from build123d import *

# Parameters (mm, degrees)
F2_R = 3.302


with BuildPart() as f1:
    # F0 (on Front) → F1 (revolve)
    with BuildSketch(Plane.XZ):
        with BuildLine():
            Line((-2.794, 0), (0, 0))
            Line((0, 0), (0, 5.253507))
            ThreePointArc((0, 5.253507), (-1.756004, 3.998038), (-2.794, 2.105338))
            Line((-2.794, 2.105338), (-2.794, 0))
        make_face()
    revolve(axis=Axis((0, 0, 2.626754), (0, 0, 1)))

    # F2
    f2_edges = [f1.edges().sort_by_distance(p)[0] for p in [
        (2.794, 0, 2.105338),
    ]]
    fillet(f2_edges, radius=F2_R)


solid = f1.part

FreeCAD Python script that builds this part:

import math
import FreeCAD as App
import Part
import Sketcher
from FreeCAD import Vector
Q = App.Units.Quantity


def edges_at(feature, points):
    """Names of the edges that pass closest to the given points."""
    edges = feature.Shape.Edges
    near = lambda p: min(range(len(edges)), key=lambda i: edges[i].distToShape(Part.Vertex(*p))[0])
    return sorted({f"Edge{near(p) + 1}" for p in points})

doc = App.newDocument("Part")
body = doc.addObject("PartDesign::Body", "Body")

# Sketch on XZ plane
sketch1 = body.newObject("Sketcher::SketchObject", "Sketch")
sketch1.AttachmentSupport = (doc.getObject("XZ_Plane"), [""])
sketch1.MapMode = "FlatFace"
sketch1.addGeometry(Part.LineSegment(Vector(-2.8, 0, 0), Vector(0, 0, 0)), False)
sketch1.addGeometry(Part.LineSegment(Vector(0, 0, 0), Vector(0, 5.3, 0)), False)
sketch1.addGeometry(Part.ArcOfCircle(Part.Circle(Vector(1.9, 0.8, 0), Vector(0, 0, 1), 4.9), math.radians(113), math.radians(164)), False)
sketch1.addGeometry(Part.LineSegment(Vector(-2.8, 2.1, 0), Vector(-2.8, 0, 0)), False)
sketch1.addConstraint(Sketcher.Constraint("Coincident", 0, 2, 1, 1))
sketch1.addConstraint(Sketcher.Constraint("Coincident", 1, 2, 2, 1))
sketch1.addConstraint(Sketcher.Constraint("Coincident", 2, 2, 3, 1))
sketch1.addConstraint(Sketcher.Constraint("Coincident", 3, 2, 0, 1))
sketch1.addConstraint(Sketcher.Constraint("Horizontal", 0))
sketch1.addConstraint(Sketcher.Constraint("Vertical", 1))
sketch1.addConstraint(Sketcher.Constraint("Vertical", 3))
sketch1.addConstraint(Sketcher.Constraint("Coincident", 0, 2, -1, 1))
sketch1.addConstraint(Sketcher.Constraint("DistanceX", 0, 1, 0, 2, Q("0.11 in")))
sketch1.addConstraint(Sketcher.Constraint("Radius", 2, Q("4.85391 mm")))
sketch1.addConstraint(Sketcher.Constraint("DistanceY", 3, 2, 3, 1, Q("2.105338 mm")))
sketch1.addConstraint(Sketcher.Constraint("DistanceY", 1, 1, 1, 2, Q("5.253507 mm")))
revolution = body.newObject("PartDesign::Revolution", "Revolution")
revolution.Profile = sketch1
revolution.ReferenceAxis = (sketch1, ["V_Axis"])
revolution.Angle = 360
doc.recompute()

fillet = body.newObject("PartDesign::Fillet", "Fillet")
fillet.Base = (revolution, edges_at(revolution, [(2.794, 0, 2.105)]))
fillet.Radius = Q("0.13 in")

doc.recompute()
